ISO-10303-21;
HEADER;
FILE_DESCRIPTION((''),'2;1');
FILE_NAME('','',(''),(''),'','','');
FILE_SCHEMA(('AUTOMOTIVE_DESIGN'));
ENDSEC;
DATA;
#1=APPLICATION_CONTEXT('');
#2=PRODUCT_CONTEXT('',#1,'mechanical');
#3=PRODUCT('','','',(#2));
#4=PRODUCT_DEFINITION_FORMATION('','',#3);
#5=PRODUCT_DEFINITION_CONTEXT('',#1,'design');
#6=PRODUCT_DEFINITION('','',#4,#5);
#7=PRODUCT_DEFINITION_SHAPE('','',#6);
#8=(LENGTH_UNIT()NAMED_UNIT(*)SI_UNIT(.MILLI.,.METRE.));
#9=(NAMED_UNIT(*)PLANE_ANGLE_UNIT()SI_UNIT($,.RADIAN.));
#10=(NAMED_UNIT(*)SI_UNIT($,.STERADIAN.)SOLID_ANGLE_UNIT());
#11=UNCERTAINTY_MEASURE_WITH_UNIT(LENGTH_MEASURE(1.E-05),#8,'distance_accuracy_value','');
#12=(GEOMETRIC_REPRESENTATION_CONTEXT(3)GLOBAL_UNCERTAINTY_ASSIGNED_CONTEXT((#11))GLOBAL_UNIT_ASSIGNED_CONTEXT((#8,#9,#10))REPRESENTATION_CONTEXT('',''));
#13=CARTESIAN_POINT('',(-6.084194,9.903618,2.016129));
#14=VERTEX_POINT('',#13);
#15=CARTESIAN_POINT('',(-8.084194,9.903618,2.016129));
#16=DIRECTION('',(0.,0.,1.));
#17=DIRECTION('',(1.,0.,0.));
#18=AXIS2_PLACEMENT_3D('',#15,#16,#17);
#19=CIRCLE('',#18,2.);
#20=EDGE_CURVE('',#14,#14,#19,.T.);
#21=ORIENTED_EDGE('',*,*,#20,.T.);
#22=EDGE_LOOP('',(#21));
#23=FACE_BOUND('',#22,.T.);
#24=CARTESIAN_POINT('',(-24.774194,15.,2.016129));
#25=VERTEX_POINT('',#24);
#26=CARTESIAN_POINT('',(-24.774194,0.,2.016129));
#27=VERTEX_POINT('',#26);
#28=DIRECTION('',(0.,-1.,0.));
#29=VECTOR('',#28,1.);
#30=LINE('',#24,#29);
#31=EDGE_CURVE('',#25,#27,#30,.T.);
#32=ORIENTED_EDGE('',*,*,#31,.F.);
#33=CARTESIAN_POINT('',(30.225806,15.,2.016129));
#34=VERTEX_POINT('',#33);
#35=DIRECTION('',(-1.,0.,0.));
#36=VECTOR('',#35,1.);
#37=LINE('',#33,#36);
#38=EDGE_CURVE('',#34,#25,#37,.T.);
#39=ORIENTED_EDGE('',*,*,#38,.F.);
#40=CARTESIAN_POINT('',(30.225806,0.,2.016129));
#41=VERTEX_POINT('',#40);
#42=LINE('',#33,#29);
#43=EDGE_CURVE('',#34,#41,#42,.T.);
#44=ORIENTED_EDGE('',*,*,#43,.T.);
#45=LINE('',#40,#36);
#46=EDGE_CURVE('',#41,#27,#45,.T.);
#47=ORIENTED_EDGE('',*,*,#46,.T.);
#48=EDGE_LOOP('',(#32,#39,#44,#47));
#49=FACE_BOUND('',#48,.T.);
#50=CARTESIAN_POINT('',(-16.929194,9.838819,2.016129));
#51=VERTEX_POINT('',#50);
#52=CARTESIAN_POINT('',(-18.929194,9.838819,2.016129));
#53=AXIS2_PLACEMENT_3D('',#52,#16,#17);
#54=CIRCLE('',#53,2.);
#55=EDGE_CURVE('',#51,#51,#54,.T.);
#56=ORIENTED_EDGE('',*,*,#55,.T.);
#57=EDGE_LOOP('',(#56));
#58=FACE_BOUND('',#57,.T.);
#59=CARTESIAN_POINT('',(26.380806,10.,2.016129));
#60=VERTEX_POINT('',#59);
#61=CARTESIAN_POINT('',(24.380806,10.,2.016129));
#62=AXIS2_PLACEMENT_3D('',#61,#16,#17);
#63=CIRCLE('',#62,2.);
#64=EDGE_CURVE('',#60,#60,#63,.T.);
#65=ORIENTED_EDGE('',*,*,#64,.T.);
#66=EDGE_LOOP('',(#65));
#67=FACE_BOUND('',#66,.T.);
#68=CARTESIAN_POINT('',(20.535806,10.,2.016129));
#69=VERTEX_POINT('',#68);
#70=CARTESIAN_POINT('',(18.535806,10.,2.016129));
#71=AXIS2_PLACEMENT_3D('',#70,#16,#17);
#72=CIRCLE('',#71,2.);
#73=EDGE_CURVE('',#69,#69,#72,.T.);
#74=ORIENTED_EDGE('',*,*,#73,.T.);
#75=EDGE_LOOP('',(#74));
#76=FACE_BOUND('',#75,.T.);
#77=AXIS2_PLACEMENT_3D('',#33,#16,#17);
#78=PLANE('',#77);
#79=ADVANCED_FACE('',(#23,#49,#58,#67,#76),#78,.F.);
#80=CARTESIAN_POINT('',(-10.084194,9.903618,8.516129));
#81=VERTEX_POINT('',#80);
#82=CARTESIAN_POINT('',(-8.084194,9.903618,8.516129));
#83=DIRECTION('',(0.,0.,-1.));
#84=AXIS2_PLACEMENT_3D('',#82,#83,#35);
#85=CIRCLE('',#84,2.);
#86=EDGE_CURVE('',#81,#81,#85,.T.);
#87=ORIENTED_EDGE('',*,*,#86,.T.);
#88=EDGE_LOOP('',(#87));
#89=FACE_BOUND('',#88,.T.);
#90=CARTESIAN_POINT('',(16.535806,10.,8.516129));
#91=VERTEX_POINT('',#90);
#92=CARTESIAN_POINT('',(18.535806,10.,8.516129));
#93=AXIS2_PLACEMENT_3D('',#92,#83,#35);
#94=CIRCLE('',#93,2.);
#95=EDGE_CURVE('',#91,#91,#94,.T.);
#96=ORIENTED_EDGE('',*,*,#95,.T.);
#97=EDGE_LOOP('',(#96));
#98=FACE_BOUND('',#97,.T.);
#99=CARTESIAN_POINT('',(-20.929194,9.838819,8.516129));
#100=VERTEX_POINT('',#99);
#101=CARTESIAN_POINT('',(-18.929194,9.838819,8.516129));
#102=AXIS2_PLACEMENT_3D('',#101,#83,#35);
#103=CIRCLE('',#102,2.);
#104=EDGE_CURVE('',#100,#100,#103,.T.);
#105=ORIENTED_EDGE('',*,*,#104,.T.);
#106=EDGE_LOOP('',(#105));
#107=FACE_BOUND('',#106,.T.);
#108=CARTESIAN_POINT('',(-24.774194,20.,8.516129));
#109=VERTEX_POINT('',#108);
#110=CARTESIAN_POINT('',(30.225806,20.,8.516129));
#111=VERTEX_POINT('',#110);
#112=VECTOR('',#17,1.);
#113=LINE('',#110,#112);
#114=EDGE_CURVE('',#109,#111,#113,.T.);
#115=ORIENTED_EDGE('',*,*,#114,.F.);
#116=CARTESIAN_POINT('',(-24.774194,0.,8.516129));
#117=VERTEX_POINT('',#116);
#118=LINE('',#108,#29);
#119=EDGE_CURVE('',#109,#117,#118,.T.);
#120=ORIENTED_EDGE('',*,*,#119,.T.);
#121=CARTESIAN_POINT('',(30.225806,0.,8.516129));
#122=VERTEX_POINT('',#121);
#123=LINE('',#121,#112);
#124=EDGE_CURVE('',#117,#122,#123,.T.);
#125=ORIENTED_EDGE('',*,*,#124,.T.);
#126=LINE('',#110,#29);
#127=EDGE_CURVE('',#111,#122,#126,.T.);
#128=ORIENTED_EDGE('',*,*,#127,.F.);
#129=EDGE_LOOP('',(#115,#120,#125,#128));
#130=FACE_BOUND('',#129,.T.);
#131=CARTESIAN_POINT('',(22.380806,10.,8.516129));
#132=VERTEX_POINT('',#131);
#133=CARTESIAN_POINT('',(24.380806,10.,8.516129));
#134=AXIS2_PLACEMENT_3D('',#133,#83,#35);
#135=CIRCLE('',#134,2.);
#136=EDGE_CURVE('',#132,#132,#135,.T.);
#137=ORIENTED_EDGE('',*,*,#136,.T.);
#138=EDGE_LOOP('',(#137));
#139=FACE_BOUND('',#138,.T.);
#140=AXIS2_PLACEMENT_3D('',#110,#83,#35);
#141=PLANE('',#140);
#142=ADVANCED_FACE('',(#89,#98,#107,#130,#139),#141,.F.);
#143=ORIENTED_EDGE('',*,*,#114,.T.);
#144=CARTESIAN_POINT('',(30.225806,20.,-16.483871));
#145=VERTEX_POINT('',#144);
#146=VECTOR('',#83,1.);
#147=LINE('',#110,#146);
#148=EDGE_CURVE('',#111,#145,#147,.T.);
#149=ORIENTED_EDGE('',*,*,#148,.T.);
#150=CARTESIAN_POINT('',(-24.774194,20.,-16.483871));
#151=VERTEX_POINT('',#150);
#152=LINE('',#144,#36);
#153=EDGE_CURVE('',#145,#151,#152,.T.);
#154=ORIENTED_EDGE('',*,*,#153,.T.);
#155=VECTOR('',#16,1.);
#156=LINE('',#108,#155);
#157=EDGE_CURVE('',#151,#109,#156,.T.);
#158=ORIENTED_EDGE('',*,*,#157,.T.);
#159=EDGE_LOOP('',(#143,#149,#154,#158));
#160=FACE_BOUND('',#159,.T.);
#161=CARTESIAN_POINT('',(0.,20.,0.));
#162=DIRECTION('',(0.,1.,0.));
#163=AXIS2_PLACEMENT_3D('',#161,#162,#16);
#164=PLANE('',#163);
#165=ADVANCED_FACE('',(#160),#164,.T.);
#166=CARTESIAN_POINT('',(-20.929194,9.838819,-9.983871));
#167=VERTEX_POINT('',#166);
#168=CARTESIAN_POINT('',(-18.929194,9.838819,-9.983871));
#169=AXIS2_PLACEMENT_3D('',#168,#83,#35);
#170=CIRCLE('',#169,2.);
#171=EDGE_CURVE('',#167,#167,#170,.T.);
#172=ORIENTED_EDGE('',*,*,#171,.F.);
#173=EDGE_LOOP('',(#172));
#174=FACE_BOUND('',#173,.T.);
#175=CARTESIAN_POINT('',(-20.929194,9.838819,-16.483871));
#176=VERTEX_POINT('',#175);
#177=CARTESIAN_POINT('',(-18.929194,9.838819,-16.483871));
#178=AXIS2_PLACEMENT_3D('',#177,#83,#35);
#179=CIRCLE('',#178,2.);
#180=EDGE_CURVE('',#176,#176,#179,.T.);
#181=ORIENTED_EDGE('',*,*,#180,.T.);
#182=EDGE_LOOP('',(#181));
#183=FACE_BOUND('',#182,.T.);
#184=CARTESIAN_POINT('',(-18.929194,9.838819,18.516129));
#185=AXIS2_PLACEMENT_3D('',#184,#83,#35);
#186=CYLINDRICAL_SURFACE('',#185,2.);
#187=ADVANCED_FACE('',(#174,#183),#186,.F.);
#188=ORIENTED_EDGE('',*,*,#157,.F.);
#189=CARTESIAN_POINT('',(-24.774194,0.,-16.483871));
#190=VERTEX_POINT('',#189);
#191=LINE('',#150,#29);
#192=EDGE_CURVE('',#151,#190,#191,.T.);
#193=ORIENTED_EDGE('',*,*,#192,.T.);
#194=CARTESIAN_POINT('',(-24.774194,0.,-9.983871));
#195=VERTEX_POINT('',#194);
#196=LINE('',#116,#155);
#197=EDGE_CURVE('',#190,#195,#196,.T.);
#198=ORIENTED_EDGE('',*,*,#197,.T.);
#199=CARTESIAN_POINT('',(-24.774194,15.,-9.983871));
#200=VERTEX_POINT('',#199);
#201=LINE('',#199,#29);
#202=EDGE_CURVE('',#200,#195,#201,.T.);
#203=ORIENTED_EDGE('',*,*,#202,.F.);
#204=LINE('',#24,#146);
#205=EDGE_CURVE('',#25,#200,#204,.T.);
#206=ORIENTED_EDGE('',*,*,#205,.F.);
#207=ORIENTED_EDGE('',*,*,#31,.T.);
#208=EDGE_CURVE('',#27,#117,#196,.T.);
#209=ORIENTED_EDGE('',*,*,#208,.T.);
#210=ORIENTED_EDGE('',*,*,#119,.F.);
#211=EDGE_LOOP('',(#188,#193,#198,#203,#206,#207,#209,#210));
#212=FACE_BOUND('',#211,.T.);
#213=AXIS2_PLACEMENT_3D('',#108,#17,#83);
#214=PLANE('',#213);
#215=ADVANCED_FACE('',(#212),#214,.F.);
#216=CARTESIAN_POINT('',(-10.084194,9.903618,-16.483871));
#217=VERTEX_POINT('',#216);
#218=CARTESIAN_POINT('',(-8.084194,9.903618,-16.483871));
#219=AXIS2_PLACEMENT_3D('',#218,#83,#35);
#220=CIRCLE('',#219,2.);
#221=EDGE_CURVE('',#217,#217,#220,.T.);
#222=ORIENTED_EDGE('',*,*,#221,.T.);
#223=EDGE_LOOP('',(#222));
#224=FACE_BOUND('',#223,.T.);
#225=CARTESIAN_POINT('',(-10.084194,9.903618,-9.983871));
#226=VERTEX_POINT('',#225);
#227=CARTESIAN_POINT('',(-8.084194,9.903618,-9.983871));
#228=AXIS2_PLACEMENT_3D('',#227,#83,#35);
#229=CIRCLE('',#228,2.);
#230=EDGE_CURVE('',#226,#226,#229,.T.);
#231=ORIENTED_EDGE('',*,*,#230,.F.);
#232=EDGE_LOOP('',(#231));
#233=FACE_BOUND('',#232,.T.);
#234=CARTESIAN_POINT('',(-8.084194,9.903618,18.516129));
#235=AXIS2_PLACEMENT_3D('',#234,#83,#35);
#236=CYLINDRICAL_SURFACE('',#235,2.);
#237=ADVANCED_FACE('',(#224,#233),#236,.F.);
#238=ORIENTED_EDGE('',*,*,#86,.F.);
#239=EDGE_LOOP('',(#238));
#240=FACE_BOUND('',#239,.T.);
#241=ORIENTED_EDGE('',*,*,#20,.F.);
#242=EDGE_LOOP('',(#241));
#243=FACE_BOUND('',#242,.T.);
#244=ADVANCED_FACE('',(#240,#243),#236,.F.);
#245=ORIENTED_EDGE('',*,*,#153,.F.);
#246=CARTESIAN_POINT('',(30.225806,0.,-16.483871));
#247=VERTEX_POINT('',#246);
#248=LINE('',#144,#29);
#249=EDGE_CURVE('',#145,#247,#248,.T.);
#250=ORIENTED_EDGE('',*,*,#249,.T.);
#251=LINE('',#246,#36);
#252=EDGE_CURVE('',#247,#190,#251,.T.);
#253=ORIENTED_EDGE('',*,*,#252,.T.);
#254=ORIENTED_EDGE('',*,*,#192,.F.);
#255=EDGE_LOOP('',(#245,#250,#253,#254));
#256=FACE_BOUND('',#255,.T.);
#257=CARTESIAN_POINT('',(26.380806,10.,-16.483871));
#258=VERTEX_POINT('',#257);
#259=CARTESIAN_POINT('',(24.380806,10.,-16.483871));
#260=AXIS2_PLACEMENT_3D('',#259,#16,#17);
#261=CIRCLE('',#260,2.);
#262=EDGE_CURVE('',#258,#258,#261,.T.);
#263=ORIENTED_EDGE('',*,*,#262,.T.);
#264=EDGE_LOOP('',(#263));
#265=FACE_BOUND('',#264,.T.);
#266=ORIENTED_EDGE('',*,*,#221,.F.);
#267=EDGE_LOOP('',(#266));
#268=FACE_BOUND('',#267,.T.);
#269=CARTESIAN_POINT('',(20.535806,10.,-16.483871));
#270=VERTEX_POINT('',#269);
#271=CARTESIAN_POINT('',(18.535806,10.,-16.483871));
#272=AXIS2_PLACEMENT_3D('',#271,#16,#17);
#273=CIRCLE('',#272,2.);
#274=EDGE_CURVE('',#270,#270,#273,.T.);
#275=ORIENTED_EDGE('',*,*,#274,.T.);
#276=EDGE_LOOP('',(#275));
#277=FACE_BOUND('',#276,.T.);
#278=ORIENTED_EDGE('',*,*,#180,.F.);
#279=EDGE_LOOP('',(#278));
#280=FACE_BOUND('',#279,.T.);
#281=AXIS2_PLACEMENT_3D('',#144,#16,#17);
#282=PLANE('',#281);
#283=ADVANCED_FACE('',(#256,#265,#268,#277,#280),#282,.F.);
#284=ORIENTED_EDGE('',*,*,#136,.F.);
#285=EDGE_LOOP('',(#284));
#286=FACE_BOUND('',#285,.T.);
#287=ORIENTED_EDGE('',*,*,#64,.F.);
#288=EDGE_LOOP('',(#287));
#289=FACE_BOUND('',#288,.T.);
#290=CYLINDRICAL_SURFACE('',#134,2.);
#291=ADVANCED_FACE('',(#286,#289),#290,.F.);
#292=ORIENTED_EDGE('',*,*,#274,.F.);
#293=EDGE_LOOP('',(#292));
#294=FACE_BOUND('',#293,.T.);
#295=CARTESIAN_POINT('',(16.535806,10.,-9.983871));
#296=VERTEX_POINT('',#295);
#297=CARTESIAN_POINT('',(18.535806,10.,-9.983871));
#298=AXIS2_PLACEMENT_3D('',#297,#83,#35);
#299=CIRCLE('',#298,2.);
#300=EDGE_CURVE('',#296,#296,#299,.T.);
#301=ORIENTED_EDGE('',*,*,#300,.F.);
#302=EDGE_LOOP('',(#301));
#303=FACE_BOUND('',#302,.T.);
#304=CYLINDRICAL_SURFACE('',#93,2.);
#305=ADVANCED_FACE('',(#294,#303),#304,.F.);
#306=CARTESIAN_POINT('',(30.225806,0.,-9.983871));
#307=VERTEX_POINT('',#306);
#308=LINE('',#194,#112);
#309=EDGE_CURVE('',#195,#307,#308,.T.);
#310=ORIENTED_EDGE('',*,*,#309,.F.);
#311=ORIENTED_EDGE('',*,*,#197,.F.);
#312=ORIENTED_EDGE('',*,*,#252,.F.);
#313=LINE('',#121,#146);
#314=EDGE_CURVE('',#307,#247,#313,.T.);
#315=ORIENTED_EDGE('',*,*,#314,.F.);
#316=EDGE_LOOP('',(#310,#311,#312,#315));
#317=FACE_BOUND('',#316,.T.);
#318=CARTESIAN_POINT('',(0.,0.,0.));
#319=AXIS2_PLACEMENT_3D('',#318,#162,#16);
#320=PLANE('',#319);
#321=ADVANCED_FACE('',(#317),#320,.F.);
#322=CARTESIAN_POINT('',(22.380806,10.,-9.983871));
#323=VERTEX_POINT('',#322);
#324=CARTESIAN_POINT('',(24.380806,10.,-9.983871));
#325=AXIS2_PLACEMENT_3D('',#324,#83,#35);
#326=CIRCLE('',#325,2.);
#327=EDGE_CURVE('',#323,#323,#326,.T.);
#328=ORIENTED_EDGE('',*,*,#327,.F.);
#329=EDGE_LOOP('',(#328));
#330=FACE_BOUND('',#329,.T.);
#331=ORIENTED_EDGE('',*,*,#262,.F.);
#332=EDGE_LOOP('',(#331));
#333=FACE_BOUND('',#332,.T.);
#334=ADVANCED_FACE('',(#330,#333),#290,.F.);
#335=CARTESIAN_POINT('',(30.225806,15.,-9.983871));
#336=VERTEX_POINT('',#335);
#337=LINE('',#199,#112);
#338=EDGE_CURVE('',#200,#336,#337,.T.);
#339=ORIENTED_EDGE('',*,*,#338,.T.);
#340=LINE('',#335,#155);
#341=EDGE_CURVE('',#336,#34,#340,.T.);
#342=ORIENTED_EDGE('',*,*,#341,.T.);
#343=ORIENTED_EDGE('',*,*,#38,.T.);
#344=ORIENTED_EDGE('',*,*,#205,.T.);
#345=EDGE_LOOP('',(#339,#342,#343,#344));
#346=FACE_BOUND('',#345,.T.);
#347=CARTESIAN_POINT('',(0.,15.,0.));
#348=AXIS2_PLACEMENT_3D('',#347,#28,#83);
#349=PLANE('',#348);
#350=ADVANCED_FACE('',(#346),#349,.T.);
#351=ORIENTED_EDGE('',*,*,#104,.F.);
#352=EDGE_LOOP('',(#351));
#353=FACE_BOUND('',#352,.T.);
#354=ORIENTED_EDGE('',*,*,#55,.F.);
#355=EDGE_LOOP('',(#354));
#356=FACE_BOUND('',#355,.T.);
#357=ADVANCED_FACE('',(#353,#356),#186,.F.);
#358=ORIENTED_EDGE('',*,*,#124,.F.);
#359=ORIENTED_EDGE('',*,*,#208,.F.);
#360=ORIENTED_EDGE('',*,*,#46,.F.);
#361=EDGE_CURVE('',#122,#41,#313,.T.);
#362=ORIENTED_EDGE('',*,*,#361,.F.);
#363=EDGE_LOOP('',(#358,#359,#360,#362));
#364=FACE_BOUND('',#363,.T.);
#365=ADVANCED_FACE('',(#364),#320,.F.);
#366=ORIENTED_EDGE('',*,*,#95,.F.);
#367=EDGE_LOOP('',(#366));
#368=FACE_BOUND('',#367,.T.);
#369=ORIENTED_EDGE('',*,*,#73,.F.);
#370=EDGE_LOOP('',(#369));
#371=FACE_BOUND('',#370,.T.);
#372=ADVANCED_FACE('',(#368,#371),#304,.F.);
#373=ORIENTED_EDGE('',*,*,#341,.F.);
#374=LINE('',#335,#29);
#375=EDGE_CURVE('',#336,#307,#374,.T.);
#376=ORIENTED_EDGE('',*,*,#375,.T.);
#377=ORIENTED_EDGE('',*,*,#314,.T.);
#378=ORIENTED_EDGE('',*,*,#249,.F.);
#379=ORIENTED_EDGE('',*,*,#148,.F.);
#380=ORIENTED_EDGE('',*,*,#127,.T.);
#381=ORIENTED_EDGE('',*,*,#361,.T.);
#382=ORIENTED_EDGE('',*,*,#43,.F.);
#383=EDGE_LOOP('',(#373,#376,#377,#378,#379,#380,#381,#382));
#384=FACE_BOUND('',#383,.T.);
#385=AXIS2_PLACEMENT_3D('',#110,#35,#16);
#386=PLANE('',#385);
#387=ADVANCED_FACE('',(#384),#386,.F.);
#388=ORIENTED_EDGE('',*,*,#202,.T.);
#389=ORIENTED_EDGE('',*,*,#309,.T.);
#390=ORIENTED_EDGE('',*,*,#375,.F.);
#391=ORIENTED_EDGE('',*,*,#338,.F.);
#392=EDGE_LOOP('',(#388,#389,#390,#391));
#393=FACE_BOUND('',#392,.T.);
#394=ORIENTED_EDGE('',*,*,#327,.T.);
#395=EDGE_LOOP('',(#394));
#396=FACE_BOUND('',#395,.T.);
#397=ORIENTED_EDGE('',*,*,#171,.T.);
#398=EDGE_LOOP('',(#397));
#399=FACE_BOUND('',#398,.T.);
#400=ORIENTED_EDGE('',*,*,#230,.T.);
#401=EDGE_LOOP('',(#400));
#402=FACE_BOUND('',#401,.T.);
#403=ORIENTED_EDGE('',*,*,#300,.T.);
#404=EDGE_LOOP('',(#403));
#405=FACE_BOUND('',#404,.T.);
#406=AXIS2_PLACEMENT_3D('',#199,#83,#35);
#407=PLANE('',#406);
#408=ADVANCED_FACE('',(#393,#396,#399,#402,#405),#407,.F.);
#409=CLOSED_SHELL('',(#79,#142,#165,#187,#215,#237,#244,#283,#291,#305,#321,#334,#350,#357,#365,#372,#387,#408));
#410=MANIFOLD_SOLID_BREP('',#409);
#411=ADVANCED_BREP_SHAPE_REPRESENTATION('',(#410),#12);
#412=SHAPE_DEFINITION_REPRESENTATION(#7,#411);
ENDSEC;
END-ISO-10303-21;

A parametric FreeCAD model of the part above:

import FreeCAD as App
import Part
import Sketcher
Q = App.Units.Quantity


def add_polygon(sketch, points):
    """Adds a closed chain of lines whose ends are joined by coincident constraints."""
    first, n = sketch.GeometryCount, len(points)
    for a, b in zip(points, points[1:] + points[:1]):
        sketch.addGeometry(Part.LineSegment(App.Vector(*a, 0), App.Vector(*b, 0)), False)
    for i in range(n):
        sketch.addConstraint(Sketcher.Constraint("Coincident", first + i, 2, first + (i + 1) % n, 1))

doc = App.newDocument("Part")
params = doc.addObject("Spreadsheet::Sheet", "Params")
for row, (alias, value) in enumerate([
    ("sketch1_width", "55 mm"),
    ("sketch1_height", "25 mm"),
    ("pad1_length", "20 mm"),
    ("sketch2_width", "55 mm"),
    ("sketch2_height", "12 mm"),
    ("pocket1_length", "15 mm"),
    ("sketch3_diameter", "4 mm"),
    ("sketch4_diameter", "4 mm"),
    ("pocket3_length", "35 mm"),
], start=1):
    params.set(f"A{row}", alias)
    params.set(f"B{row}", "=" + value)
    params.setAlias(f"B{row}", alias)

body = doc.addObject("PartDesign::Body", "Body")

sketch1 = body.newObject("Sketcher::SketchObject", "Sketch")
sketch1.AttachmentSupport = (doc.getObject("XZ_Plane"), [""])
sketch1.MapMode = "FlatFace"
add_polygon(sketch1, [(-25, -16), (-25, 9), (30, 9), (30, -16)])
sketch1.addConstraint([
    Sketcher.Constraint("Vertical", 0),
    Sketcher.Constraint("Horizontal", 1),
    Sketcher.Constraint("Vertical", 2),
    Sketcher.Constraint("Horizontal", 3),
    Sketcher.Constraint("DistanceX", 1, 1, 1, 2, Q("55 mm")),
    Sketcher.Constraint("DistanceY", 0, 1, 0, 2, Q("25 mm")),
    Sketcher.Constraint("DistanceY", -1, 1, 0, 2, Q("8.516129 mm")),
    Sketcher.Constraint("DistanceX", 0, 2, -1, 1, Q("24.774194 mm")),
])
sketch1.setExpression("Constraints[8]", "Params.sketch1_width")
sketch1.setExpression("Constraints[9]", "Params.sketch1_height")
pad1 = body.newObject("PartDesign::Pad", "Pad")
pad1.Profile = sketch1
pad1.setExpression("Length", "Params.pad1_length")
pad1.Reversed = True

sketch2 = body.newObject("Sketcher::SketchObject", "Sketch001")
sketch2.AttachmentSupport = (doc.getObject("XZ_Plane"), [""])
sketch2.MapMode = "FlatFace"
add_polygon(sketch2, [(30, -10), (30, 2), (-25, 2), (-25, -10)])
sketch2.addConstraint([
    Sketcher.Constraint("Vertical", 0),
    Sketcher.Constraint("Horizontal", 1),
    Sketcher.Constraint("Vertical", 2),
    Sketcher.Constraint("Horizontal", 3),
    Sketcher.Constraint("DistanceX", 1, 2, 1, 1, Q("55 mm")),
    Sketcher.Constraint("DistanceY", 0, 1, 0, 2, Q("12 mm")),
    Sketcher.Constraint("DistanceY", -1, 1, 0, 2, Q("2.016129 mm")),
    Sketcher.Constraint("DistanceX", -1, 1, 0, 2, Q("30.225806 mm")),
])
sketch2.setExpression("Constraints[8]", "Params.sketch2_width")
sketch2.setExpression("Constraints[9]", "Params.sketch2_height")
pocket1 = body.newObject("PartDesign::Pocket", "Pocket")
pocket1.Profile = sketch2
pocket1.setExpression("Length", "Params.pocket1_length")

sketch3 = body.newObject("Sketcher::SketchObject", "Sketch002")
sketch3.AttachmentSupport = (doc.getObject("XY_Plane"), [""])
sketch3.MapMode = "FlatFace"
sketch3.AttachmentOffset = App.Placement(App.Vector(0, 0, -16.483871), App.Rotation())
sketch3.addGeometry([
    Part.Circle(App.Vector(24.4, 10, 0), App.Vector(0, 0, 1), 2),
    Part.Circle(App.Vector(18.5, 10, 0), App.Vector(0, 0, 1), 2),
], False)
sketch3.addConstraint([
    Sketcher.Constraint("Equal", 0, 1),
    Sketcher.Constraint("Horizontal", 0, 3, 1, 3),
    Sketcher.Constraint("Diameter", 0, Q("4 mm")),
    Sketcher.Constraint("DistanceY", -1, 1, 0, 3, Q("10 mm")),
    Sketcher.Constraint("DistanceX", 1, 3, 0, 3, Q("5.845 mm")),
    Sketcher.Constraint("DistanceX", -1, 1, 0, 3, Q("24.380806 mm")),
])
sketch3.setExpression("Constraints[2]", "Params.sketch3_diameter")
pocket2 = body.newObject("PartDesign::Pocket", "Pocket001")
pocket2.Profile = sketch3
pocket2.Type = "ThroughAll"
pocket2.Midplane = True

sketch4 = body.newObject("Sketcher::SketchObject", "Sketch003")
sketch4.AttachmentSupport = (doc.getObject("XY_Plane"), [""])
sketch4.MapMode = "FlatFace"
sketch4.AttachmentOffset = App.Placement(App.Vector(0, 0, -16.483871), App.Rotation())
sketch4.addGeometry([
    Part.Circle(App.Vector(-8.1, 9.9, 0), App.Vector(0, 0, 1), 2),
    Part.Circle(App.Vector(-18.9, 9.8, 0), App.Vector(0, 0, 1), 2),
], False)
sketch4.addConstraint([
    Sketcher.Constraint("Equal", 0, 1),
    Sketcher.Constraint("Diameter", 0, Q("4 mm")),
    Sketcher.Constraint("DistanceX", 1, 3, 0, 3, Q("10.845 mm")),
    Sketcher.Constraint("DistanceY", 1, 3, 0, 3, Q("0.064799 mm")),
    Sketcher.Constraint("DistanceY", -1, 1, 1, 3, Q("9.838819 mm")),
    Sketcher.Constraint("DistanceX", 0, 3, -1, 1, Q("8.084194 mm")),
])
sketch4.setExpression("Constraints[1]", "Params.sketch4_diameter")
pocket3 = body.newObject("PartDesign::Pocket", "Pocket002")
pocket3.Profile = sketch4
pocket3.setExpression("Length", "Params.pocket3_length")
pocket3.Reversed = True

doc.recompute()
